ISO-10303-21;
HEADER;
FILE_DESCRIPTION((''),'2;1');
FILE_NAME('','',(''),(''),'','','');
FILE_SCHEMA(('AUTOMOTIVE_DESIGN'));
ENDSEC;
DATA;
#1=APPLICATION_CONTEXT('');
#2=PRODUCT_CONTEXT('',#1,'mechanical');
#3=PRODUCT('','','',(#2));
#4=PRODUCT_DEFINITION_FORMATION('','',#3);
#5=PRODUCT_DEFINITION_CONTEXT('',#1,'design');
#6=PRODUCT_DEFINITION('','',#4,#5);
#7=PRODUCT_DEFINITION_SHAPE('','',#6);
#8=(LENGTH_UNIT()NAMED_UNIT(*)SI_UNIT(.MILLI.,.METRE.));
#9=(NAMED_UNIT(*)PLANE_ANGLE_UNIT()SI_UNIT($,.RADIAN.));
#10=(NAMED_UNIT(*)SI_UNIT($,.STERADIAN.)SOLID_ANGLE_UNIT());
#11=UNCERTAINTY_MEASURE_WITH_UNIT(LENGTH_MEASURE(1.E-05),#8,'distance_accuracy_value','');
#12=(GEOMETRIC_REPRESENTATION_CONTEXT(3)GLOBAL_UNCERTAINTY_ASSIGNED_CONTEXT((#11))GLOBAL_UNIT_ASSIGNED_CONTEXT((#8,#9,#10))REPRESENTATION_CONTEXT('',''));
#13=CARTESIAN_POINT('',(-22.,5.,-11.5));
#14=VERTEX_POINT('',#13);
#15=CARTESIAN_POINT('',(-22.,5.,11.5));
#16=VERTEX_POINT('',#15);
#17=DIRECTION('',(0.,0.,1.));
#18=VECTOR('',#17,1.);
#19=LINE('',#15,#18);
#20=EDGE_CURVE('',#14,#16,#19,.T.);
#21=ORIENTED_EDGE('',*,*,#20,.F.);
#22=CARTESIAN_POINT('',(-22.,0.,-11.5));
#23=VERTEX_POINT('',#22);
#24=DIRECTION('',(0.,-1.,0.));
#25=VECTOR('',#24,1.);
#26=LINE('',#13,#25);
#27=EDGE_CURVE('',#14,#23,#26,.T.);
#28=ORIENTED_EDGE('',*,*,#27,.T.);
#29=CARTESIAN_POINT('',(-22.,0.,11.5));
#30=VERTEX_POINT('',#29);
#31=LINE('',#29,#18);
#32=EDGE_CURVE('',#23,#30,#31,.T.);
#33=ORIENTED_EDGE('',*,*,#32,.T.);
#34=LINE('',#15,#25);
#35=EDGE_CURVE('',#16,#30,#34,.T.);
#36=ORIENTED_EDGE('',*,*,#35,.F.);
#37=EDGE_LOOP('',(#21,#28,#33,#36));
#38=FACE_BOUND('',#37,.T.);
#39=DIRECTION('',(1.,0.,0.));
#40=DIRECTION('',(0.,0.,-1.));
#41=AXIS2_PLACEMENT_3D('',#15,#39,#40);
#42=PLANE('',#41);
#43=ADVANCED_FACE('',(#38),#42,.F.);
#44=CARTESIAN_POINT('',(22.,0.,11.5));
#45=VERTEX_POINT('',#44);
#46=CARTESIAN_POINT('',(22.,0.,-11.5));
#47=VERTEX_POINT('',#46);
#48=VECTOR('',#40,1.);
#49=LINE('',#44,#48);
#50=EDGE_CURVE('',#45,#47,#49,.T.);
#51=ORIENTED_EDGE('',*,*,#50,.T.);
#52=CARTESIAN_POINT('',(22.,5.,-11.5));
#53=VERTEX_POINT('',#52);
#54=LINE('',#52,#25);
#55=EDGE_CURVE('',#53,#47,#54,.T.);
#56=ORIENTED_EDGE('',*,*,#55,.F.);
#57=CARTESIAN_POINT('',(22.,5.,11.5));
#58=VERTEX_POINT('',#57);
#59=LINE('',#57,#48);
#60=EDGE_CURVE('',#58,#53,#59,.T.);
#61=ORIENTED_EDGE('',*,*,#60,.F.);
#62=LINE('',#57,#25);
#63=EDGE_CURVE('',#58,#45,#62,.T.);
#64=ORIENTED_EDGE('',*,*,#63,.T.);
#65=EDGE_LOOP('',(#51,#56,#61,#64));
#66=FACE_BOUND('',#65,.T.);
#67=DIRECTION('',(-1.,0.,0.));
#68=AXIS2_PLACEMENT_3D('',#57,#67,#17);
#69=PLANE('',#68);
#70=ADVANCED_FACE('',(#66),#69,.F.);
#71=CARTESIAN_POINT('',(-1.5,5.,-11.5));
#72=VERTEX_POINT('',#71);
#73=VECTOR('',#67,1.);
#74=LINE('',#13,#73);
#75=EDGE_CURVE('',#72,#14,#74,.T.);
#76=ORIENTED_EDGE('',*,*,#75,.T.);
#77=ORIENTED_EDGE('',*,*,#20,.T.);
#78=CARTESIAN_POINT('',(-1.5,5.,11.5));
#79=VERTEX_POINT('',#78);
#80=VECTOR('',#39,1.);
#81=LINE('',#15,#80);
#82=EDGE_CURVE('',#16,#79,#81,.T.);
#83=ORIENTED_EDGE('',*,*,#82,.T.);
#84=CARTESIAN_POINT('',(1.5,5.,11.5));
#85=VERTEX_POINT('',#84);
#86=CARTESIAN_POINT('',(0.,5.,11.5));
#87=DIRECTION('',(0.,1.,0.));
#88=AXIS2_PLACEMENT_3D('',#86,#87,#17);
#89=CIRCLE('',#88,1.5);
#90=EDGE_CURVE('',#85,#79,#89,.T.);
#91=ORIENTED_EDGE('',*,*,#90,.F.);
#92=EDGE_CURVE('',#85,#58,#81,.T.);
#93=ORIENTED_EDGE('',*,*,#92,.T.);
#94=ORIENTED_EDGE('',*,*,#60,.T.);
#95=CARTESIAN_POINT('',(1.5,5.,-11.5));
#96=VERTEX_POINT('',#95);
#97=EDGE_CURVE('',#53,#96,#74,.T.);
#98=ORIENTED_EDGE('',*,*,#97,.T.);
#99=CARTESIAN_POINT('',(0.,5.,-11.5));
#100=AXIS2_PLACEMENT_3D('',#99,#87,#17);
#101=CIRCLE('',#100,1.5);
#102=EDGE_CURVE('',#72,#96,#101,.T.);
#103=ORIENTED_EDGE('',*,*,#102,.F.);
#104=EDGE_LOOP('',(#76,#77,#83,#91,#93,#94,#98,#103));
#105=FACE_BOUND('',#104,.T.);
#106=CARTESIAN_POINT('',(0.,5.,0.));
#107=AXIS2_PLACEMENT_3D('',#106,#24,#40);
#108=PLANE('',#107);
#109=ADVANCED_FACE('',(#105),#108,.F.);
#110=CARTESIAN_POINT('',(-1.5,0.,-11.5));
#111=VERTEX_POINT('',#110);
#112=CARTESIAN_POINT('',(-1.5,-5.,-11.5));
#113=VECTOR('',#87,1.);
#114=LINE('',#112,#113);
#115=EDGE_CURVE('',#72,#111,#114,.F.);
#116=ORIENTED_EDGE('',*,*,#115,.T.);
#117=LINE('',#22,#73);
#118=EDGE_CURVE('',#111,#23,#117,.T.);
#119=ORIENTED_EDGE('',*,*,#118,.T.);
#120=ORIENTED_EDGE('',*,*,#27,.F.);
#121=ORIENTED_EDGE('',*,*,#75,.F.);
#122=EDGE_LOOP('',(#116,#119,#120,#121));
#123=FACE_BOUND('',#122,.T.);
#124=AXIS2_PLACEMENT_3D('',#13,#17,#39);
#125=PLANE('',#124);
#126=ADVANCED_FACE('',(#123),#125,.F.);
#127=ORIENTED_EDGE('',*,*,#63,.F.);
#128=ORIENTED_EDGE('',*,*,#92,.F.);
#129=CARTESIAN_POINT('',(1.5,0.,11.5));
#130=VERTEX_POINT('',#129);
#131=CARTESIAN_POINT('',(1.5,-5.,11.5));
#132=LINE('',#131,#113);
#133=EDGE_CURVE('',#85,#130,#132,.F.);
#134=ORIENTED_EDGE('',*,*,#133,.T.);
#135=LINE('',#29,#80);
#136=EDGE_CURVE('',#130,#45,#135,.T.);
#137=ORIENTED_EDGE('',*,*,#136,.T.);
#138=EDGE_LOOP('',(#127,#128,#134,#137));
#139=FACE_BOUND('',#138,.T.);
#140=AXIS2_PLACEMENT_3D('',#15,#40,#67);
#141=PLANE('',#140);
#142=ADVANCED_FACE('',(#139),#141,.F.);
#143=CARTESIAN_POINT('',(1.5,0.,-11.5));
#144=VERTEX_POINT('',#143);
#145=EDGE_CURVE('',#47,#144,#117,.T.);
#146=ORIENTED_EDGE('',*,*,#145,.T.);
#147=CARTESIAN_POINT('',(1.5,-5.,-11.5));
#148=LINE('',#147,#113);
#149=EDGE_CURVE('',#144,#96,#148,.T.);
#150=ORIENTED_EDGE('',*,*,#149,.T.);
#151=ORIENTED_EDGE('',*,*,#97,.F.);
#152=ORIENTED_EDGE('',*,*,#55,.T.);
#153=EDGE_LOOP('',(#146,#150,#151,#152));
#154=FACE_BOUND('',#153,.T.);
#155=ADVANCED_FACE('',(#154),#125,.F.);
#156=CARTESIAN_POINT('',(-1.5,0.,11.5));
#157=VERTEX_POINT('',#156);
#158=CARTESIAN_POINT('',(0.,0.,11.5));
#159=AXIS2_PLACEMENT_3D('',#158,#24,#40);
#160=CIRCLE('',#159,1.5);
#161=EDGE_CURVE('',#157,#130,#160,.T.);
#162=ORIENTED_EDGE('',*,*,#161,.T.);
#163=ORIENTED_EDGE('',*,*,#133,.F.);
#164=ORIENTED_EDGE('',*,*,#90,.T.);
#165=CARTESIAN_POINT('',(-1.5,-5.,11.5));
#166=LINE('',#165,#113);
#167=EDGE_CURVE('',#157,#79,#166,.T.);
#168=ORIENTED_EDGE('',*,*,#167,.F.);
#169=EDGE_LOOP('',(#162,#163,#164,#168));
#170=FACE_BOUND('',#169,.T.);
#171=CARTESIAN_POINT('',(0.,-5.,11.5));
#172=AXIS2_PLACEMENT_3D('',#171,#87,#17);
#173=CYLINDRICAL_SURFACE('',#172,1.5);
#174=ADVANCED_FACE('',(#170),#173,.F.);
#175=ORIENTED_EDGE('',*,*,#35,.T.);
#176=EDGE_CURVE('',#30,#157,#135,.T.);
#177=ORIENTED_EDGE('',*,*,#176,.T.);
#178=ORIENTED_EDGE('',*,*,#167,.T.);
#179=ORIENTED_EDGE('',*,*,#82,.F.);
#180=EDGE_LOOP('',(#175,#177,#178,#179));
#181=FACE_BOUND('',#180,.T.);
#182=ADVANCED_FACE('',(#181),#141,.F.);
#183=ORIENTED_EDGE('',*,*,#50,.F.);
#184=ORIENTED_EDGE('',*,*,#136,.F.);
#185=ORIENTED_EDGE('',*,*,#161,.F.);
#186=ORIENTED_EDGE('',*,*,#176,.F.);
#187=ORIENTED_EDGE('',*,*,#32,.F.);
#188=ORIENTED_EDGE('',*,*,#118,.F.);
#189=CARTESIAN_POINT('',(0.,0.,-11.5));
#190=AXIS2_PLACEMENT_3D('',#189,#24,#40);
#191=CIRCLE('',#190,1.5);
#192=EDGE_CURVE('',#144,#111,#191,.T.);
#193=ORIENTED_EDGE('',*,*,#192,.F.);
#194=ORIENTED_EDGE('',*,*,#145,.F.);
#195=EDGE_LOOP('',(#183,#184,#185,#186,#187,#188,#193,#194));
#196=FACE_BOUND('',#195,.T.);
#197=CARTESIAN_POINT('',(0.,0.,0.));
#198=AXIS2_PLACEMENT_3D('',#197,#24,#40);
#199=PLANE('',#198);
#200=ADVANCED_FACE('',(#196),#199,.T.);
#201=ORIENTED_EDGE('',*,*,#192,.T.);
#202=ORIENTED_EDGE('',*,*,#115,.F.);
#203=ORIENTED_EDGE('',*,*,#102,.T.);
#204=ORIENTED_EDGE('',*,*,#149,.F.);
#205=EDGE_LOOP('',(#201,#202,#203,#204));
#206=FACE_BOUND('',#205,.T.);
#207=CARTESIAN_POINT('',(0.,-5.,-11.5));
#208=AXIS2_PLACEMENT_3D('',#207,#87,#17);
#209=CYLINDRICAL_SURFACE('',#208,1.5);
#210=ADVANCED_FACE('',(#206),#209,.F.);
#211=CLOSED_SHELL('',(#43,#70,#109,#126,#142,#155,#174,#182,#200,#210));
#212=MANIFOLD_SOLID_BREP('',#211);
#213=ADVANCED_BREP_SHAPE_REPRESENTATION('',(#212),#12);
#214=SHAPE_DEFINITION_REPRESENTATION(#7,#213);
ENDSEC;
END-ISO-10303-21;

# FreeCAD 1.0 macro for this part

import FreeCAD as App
import Part
import Sketcher
from FreeCAD import Vector


def add_polygon(sketch, points):
    """Adds a closed chain of lines whose ends are joined by coincident constraints."""
    first, n = sketch.GeometryCount, len(points)
    for a, b in zip(points, points[1:] + points[:1]):
        sketch.addGeometry(Part.LineSegment(App.Vector(*a, 0), App.Vector(*b, 0)), False)
    for i in range(n):
        sketch.addConstraint(Sketcher.Constraint("Coincident", first + i, 2, first + (i + 1) % n, 1))

doc = App.newDocument("Part")
params = doc.addObject("Spreadsheet::Sheet", "Params")
for row, (alias, value) in enumerate([
    ("sketch1_width", "44 mm"),
    ("sketch1_height", "23 mm"),
    ("pad1_length", "5 mm"),
    ("sketch2_diameter", "3 mm"),
    ("pocket1_length", "10 mm"),
], start=1):
    params.set(f"A{row}", alias)
    params.set(f"B{row}", "=" + value)
    params.setAlias(f"B{row}", alias)

body = doc.addObject("PartDesign::Body", "Body")

sketch1 = body.newObject("Sketcher::SketchObject", "Sketch")
sketch1.AttachmentSupport = (doc.getObject("XZ_Plane"), [""])
sketch1.MapMode = "FlatFace"
add_polygon(sketch1, [(-22, -12), (-22, 12), (22, 12), (22, -12)])
sketch1.addConstraint([
    Sketcher.Constraint("Vertical", 0),
    Sketcher.Constraint("Horizontal", 1),
    Sketcher.Constraint("Vertical", 2),
    Sketcher.Constraint("Horizontal", 3),
    Sketcher.Constraint("Symmetric", 0, 2, 2, 2, -1, 1),
    Sketcher.Constraint("DistanceX", 1, 1, 1, 2, 44.0),
    Sketcher.Constraint("DistanceY", 0, 1, 0, 2, 23.0),
])
sketch1.setExpression("Constraints[9]", "Params.sketch1_width")
sketch1.setExpression("Constraints[10]", "Params.sketch1_height")
pad1 = body.newObject("PartDesign::Pad", "Pad")
pad1.Profile = sketch1
pad1.setExpression("Length", "Params.pad1_length")
pad1.Reversed = True

sketch2 = body.newObject("Sketcher::SketchObject", "Sketch001")
sketch2.AttachmentSupport = (doc.getObject("XZ_Plane"), [""])
sketch2.MapMode = "FlatFace"
sketch2.AttachmentOffset = App.Placement(Vector(0, 0, -5), App.Rotation())
sketch2.addGeometry([
    Part.Circle(Vector(0, -11.5, 0), Vector(0, 0, 1), 1.5),
    Part.Circle(Vector(0, 11.5, 0), Vector(0, 0, 1), 1.5),
], False)
sketch2.addConstraint([
    Sketcher.Constraint("Equal", 0, 1),
    Sketcher.Constraint("Symmetric", 0, 3, 1, 3, -1, 1),
    Sketcher.Constraint("PointOnObject", 0, 3, -2),
    Sketcher.Constraint("Diameter", 0, 3.0),
    Sketcher.Constraint("DistanceY", 0, 3, 1, 3, 23.0),
])
sketch2.setExpression("Constraints[3]", "Params.sketch2_diameter")
pocket1 = body.newObject("PartDesign::Pocket", "Pocket")
pocket1.Profile = sketch2
pocket1.setExpression("Length", "Params.pocket1_length")
pocket1.Reversed = True

doc.recompute()
